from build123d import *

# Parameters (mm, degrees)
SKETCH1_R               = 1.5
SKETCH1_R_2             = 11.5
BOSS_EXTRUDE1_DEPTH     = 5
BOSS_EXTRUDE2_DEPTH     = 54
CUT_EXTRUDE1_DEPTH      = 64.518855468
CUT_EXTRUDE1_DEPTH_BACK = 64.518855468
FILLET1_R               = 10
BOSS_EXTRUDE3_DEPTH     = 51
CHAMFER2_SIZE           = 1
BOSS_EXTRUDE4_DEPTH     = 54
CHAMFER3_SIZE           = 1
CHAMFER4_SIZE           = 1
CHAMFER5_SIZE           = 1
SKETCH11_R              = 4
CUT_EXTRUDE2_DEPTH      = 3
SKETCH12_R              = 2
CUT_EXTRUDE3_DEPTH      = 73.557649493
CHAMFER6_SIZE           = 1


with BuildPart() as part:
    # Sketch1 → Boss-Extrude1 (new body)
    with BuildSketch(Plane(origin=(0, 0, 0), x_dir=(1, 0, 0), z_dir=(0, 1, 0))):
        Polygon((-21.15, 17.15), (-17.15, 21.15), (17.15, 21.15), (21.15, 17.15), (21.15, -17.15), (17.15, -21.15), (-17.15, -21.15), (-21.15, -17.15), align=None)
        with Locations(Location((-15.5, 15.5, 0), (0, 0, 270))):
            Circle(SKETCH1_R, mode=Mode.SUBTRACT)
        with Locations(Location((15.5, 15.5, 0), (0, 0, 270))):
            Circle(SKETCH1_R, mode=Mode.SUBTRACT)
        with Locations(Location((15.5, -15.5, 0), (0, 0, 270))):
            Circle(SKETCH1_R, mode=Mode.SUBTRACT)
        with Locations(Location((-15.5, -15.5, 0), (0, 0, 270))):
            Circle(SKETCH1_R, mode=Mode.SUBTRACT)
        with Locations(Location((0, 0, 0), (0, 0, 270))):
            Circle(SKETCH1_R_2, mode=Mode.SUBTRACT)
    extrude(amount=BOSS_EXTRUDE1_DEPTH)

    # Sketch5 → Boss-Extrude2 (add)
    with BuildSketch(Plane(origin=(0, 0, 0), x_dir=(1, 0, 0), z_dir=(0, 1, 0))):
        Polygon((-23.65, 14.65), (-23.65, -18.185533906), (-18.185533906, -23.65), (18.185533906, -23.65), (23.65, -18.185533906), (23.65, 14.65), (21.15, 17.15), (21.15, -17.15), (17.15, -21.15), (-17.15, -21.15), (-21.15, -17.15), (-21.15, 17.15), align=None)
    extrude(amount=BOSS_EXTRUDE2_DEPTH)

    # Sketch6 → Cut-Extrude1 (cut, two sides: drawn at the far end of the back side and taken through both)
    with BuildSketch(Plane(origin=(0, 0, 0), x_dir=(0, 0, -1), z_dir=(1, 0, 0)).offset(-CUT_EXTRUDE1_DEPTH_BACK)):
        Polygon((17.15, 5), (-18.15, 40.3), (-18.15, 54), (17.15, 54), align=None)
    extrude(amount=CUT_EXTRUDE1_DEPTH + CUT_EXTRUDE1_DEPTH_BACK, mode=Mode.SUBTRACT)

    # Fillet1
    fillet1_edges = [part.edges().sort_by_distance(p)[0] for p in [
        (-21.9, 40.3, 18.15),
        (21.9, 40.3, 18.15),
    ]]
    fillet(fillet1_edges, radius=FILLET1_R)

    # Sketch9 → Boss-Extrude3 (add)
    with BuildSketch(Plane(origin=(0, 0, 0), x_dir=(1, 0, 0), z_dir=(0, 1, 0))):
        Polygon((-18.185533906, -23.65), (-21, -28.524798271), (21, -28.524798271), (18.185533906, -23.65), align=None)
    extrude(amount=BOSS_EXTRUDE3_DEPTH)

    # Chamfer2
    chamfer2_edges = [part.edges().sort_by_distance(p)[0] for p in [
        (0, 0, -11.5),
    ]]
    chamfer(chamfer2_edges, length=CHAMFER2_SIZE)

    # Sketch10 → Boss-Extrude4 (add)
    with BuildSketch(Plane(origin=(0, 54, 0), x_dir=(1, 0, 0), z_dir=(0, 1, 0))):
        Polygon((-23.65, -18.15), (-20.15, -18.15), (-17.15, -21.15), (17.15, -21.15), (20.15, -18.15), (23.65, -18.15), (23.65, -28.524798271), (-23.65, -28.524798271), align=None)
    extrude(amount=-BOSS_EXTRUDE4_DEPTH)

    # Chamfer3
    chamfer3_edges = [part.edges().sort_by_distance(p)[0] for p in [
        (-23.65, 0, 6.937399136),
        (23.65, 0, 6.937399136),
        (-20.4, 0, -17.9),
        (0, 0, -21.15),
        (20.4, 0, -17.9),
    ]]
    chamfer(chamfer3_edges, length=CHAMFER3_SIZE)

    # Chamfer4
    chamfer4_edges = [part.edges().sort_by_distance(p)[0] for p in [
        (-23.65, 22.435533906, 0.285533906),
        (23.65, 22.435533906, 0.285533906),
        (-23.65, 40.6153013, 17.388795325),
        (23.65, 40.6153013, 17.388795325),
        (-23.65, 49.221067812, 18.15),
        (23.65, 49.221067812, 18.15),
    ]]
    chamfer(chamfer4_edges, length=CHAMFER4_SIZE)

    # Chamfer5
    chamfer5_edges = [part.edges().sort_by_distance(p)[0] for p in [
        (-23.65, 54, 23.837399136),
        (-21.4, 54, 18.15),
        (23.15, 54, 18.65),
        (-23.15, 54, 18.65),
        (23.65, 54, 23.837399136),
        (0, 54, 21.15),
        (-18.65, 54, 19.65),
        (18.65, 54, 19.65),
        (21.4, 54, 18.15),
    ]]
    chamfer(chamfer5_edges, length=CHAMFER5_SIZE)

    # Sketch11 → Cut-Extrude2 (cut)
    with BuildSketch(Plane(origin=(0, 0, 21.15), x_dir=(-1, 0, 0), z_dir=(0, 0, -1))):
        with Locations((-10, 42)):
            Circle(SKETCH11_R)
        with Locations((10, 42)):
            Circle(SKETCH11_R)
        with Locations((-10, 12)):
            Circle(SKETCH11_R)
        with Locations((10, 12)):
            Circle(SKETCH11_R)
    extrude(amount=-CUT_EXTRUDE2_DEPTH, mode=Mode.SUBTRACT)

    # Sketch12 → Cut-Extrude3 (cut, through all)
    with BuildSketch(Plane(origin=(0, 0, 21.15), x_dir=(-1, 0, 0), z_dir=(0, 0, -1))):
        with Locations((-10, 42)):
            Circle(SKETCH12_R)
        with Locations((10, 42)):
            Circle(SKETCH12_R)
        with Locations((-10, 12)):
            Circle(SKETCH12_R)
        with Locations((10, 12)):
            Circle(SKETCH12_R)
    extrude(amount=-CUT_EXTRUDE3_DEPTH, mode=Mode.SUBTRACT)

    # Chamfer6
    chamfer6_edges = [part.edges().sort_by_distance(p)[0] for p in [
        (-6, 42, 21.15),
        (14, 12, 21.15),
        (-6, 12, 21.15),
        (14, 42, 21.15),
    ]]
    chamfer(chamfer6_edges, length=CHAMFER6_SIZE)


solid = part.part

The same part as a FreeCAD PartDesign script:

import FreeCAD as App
import Part
import Sketcher

V = App.Vector
Q = App.Units.Quantity


def edges_at(feature, points):
    """Names of the edges that pass closest to the given points."""
    edges = feature.Shape.Edges
    near = lambda p: min(range(len(edges)), key=lambda i: edges[i].distToShape(Part.Vertex(*p))[0])
    return sorted({f"Edge{near(p) + 1}" for p in points})

doc = App.newDocument("Part")
body = doc.addObject("PartDesign::Body", "Body")

# Sketch on XZ plane
sketch1 = body.newObject("Sketcher::SketchObject", "Sketch")
sketch1.AttachmentSupport = (doc.getObject("XZ_Plane"), [""])
sketch1.MapMode = "FlatFace"
sketch1.addGeometry([
    Part.LineSegment(V(-17.1, -21.1, 0), V(-21.1, -17.1, 0)),  # 0
    Part.LineSegment(V(-21.1, -17.1, 0), V(-21.1, 17.1, 0)),  # 1
    Part.LineSegment(V(-21.1, 17.1, 0), V(-17.1, 21.1, 0)),  # 2
    Part.LineSegment(V(-17.1, 21.1, 0), V(17.1, 21.1, 0)),  # 3
    Part.LineSegment(V(17.1, 21.1, 0), V(21.1, 17.1, 0)),  # 4
    Part.LineSegment(V(21.1, 17.1, 0), V(21.1, -17.1, 0)),  # 5
    Part.LineSegment(V(21.1, -17.1, 0), V(17.1, -21.1, 0)),  # 6
    Part.LineSegment(V(17.1, -21.1, 0), V(-17.1, -21.1, 0)),  # 7
    Part.Circle(V(15.5, 15.5, 0), V(0, 0, 1), 1.5),  # 8
    Part.Circle(V(-15.5, 15.5, 0), V(0, 0, 1), 1.5),  # 9
    Part.Circle(V(15.5, -15.5, 0), V(0, 0, 1), 1.5),  # 10
    Part.Circle(V(0, 0, 0), V(0, 0, 1), 11.5),  # 11
    Part.Circle(V(-15.5, -15.5, 0), V(0, 0, 1), 1.5),  # 12
], False)
sketch1.addConstraint([
    Sketcher.Constraint("Coincident", 0, 2, 1, 1),
    Sketcher.Constraint("Coincident", 1, 2, 2, 1),
    Sketcher.Constraint("Coincident", 2, 2, 3, 1),
    Sketcher.Constraint("Coincident", 3, 2, 4, 1),
    Sketcher.Constraint("Coincident", 4, 2, 5, 1),
    Sketcher.Constraint("Coincident", 5, 2, 6, 1),
    Sketcher.Constraint("Coincident", 6, 2, 7, 1),
    Sketcher.Constraint("Coincident", 7, 2, 0, 1),
    Sketcher.Constraint("Vertical", 1),
    Sketcher.Constraint("Horizontal", 3),
    Sketcher.Constraint("Vertical", 5),
    Sketcher.Constraint("Horizontal", 7),
    Sketcher.Constraint("Coincident", 11, 3, -1, 1),
    Sketcher.Constraint("Equal", 8, 9),
    Sketcher.Constraint("Equal", 9, 10),
    Sketcher.Constraint("Equal", 10, 12),
    Sketcher.Constraint("Symmetric", 9, 3, 10, 3, -1, 1),
    Sketcher.Constraint("Symmetric", 8, 3, 12, 3, -1, 1),
    Sketcher.Constraint("Symmetric", 0, 2, 4, 2, -1, 1),
    Sketcher.Constraint("Symmetric", 2, 2, 6, 2, -1, 1),
    Sketcher.Constraint("Symmetric", 8, 3, 9, 3, -2),
    Sketcher.Constraint("Perpendicular", 0, 2),
    Sketcher.Constraint("Perpendicular", 2, 4),
    Sketcher.Constraint("Perpendicular", 4, 6),
    Sketcher.Constraint("Horizontal", 1, 2, 4, 2),
    Sketcher.Constraint("Vertical", 3, 2, 6, 2),
    Sketcher.Constraint("Equal", 7, 1),
    Sketcher.Constraint("Diameter", 8, 3.0),
    Sketcher.Constraint("Diameter", 11, 23.0),
    Sketcher.Constraint("DistanceX", 3, 1, 3, 2, 34.3),
    Sketcher.Constraint("DistanceX", 9, 3, 8, 3, 31.0),
    Sketcher.Constraint("DistanceY", 10, 3, 8, 3, 31.0),
    Sketcher.Constraint("DistanceX", 1, 2, 2, 2, 4.0),
])
pad1 = body.newObject("PartDesign::Pad", "Pad")
pad1.Profile = sketch1
pad1.Length = 5
pad1.Reversed = True

# Sketch on XZ plane
sketch2 = body.newObject("Sketcher::SketchObject", "Sketch001")
sketch2.AttachmentSupport = (doc.getObject("XZ_Plane"), [""])
sketch2.MapMode = "FlatFace"
sketch2.addGeometry([
    Part.LineSegment(V(-23.6, -14.7, 0), V(-23.6, 18.2, 0)),  # 0
    Part.LineSegment(V(-23.6, 18.2, 0), V(-18.2, 23.6, 0)),  # 1
    Part.LineSegment(V(-18.2, 23.6, 0), V(18.2, 23.6, 0)),  # 2
    Part.LineSegment(V(18.2, 23.6, 0), V(23.6, 18.2, 0)),  # 3
    Part.LineSegment(V(23.6, 18.2, 0), V(23.6, -14.7, 0)),  # 4
    Part.LineSegment(V(23.6, -14.7, 0), V(21.1, -17.1, 0)),  # 5
    Part.LineSegment(V(21.1, -17.1, 0), V(21.1, 17.1, 0)),  # 6
    Part.LineSegment(V(21.1, 17.1, 0), V(17.1, 21.1, 0)),  # 7
    Part.LineSegment(V(17.1, 21.1, 0), V(-17.1, 21.1, 0)),  # 8
    Part.LineSegment(V(-17.1, 21.1, 0), V(-21.1, 17.1, 0)),  # 9
    Part.LineSegment(V(-21.1, 17.1, 0), V(-21.1, -17.1, 0)),  # 10
    Part.LineSegment(V(-21.1, -17.1, 0), V(-23.6, -14.7, 0)),  # 11
], False)
sketch2.addConstraint([
    Sketcher.Constraint("Coincident", 0, 2, 1, 1),
    Sketcher.Constraint("Coincident", 1, 2, 2, 1),
    Sketcher.Constraint("Coincident", 2, 2, 3, 1),
    Sketcher.Constraint("Coincident", 3, 2, 4, 1),
    Sketcher.Constraint("Coincident", 4, 2, 5, 1),
    Sketcher.Constraint("Coincident", 5, 2, 6, 1),
    Sketcher.Constraint("Coincident", 6, 2, 7, 1),
    Sketcher.Constraint("Coincident", 7, 2, 8, 1),
    Sketcher.Constraint("Coincident", 8, 2, 9, 1),
    Sketcher.Constraint("Coincident", 9, 2, 10, 1),
    Sketcher.Constraint("Coincident", 10, 2, 11, 1),
    Sketcher.Constraint("Coincident", 11, 2, 0, 1),
    Sketcher.Constraint("Vertical", 0),
    Sketcher.Constraint("Horizontal", 2),
    Sketcher.Constraint("Vertical", 4),
    Sketcher.Constraint("Vertical", 6),
    Sketcher.Constraint("Horizontal", 8),
    Sketcher.Constraint("Vertical", 10),
    Sketcher.Constraint("Symmetric", 5, 2, 9, 2, -1, 1),
    Sketcher.Constraint("Symmetric", 0, 2, 3, 2, -2),
    Sketcher.Constraint("Perpendicular", 1, 3),
    Sketcher.Constraint("Perpendicular", 3, 5),
    Sketcher.Constraint("Perpendicular", 5, 7),
    Sketcher.Constraint("Perpendicular", 7, 9),
    Sketcher.Constraint("Perpendicular", 9, 11),
    Sketcher.Constraint("Horizontal", 6, 2, 9, 2),
    Sketcher.Constraint("Horizontal", 5, 2, 10, 2),
    Sketcher.Constraint("Horizontal", 4, 2, 11, 2),
    Sketcher.Constraint("Equal", 8, 6),
    Sketcher.Constraint("DistanceX", 8, 2, 8, 1, 34.3),
    Sketcher.Constraint("DistanceX", 7, 2, 6, 2, 4.0),
    Sketcher.Constraint("DistanceX", 0, 2, 3, 2, 47.3),
    Sketcher.Constraint("DistanceY", 4, 2, 2, 2, 38.3),
    Sketcher.Constraint("DistanceX", 2, 1, 2, 2, 36.371068),
])
pad2 = body.newObject("PartDesign::Pad", "Pad001")
pad2.Profile = sketch2
pad2.Length = 54
pad2.Reversed = True

# Sketch on YZ plane
sketch3 = body.newObject("Sketcher::SketchObject", "Sketch002")
sketch3.AttachmentSupport = (doc.getObject("YZ_Plane"), [""])
sketch3.MapMode = "FlatFace"
sketch3.addGeometry([
    Part.LineSegment(V(40, 18, 0), V(5, -17, 0)),
    Part.LineSegment(V(5, -17, 0), V(54, -17, 0)),
    Part.LineSegment(V(54, -17, 0), V(54, 18, 0)),
    Part.LineSegment(V(54, 18, 0), V(40, 18, 0)),
], False)
sketch3.addConstraint([
    Sketcher.Constraint("Coincident", 0, 2, 1, 1),
    Sketcher.Constraint("Coincident", 1, 2, 2, 1),
    Sketcher.Constraint("Coincident", 2, 2, 3, 1),
    Sketcher.Constraint("Coincident", 3, 2, 0, 1),
    Sketcher.Constraint("Horizontal", 1),
    Sketcher.Constraint("Vertical", 2),
    Sketcher.Constraint("Horizontal", 3),
    Sketcher.Constraint("DistanceX", 1, 1, 1, 2, 49.0),
    Sketcher.Constraint("Angle", 0, Q("-135 deg")),
    Sketcher.Constraint("DistanceX", 3, 2, 3, 1, 13.7),
    Sketcher.Constraint("DistanceX", -1, 1, 0, 2, 5.0),
    Sketcher.Constraint("DistanceY", 0, 2, -1, 1, 17.15),
])
pocket1 = body.newObject("PartDesign::Pocket", "Pocket")
pocket1.Profile = sketch3
pocket1.Type = "ThroughAll"
pocket1.Midplane = True
doc.recompute()

fillet = body.newObject("PartDesign::Fillet", "Fillet")
fillet.Base = (pocket1, edges_at(pocket1, [(-21.9, 40.3, 18.15), (21.9, 40.3, 18.15)]))
fillet.Radius = 10

# Sketch on XZ plane
sketch4 = body.newObject("Sketcher::SketchObject", "Sketch003")
sketch4.AttachmentSupport = (doc.getObject("XZ_Plane"), [""])
sketch4.MapMode = "FlatFace"
sketch4.addGeometry([
    Part.LineSegment(V(-18, 24, 0), V(-21, 29, 0)),
    Part.LineSegment(V(-21, 29, 0), V(21, 29, 0)),
    Part.LineSegment(V(21, 29, 0), V(18, 24, 0)),
    Part.LineSegment(V(18, 24, 0), V(-18, 24, 0)),
], False)
sketch4.addConstraint([
    Sketcher.Constraint("Coincident", 0, 2, 1, 1),
    Sketcher.Constraint("Coincident", 1, 2, 2, 1),
    Sketcher.Constraint("Coincident", 2, 2, 3, 1),
    Sketcher.Constraint("Coincident", 3, 2, 0, 1),
    Sketcher.Constraint("Horizontal", 1),
    Sketcher.Constraint("Horizontal", 3),
    Sketcher.Constraint("Equal", 0, 2),
    Sketcher.Constraint("DistanceX", 1, 1, 1, 2, 42.0),
    Sketcher.Constraint("Angle", 0, Q("120 deg")),
    Sketcher.Constraint("DistanceX", 0, 2, -1, 1, 21.0),
    Sketcher.Constraint("DistanceY", -1, 1, 2, 2, 23.65),
    Sketcher.Constraint("DistanceY", -1, 1, 0, 2, 28.524798),
])
pad3 = body.newObject("PartDesign::Pad", "Pad002")
pad3.Profile = sketch4
pad3.Length = 51
pad3.Reversed = True
doc.recompute()

chamfer = body.newObject("PartDesign::Chamfer", "Chamfer")
chamfer.Base = (pad3, edges_at(pad3, [(0, 0, -11.5)]))
chamfer.Size = 1

# Sketch on XZ plane
sketch5 = body.newObject("Sketcher::SketchObject", "Sketch004")
sketch5.AttachmentSupport = (doc.getObject("XZ_Plane"), [""])
sketch5.MapMode = "FlatFace"
sketch5.AttachmentOffset = App.Placement(V(0, 0, -54), App.Rotation())
sketch5.addGeometry([
    Part.LineSegment(V(-20.1, 18.1, 0), V(-23.6, 18.1, 0)),  # 0
    Part.LineSegment(V(-23.6, 18.1, 0), V(-23.6, 28.5, 0)),  # 1
    Part.LineSegment(V(-23.6, 28.5, 0), V(23.6, 28.5, 0)),  # 2
    Part.LineSegment(V(23.6, 28.5, 0), V(23.6, 18.1, 0)),  # 3
    Part.LineSegment(V(23.6, 18.1, 0), V(20.1, 18.1, 0)),  # 4
    Part.LineSegment(V(20.1, 18.1, 0), V(17.1, 21.1, 0)),  # 5
    Part.LineSegment(V(17.1, 21.1, 0), V(-17.1, 21.1, 0)),  # 6
    Part.LineSegment(V(-17.1, 21.1, 0), V(-20.1, 18.1, 0)),  # 7
], False)
sketch5.addConstraint([
    Sketcher.Constraint("Coincident", 0, 2, 1, 1),
    Sketcher.Constraint("Coincident", 1, 2, 2, 1),
    Sketcher.Constraint("Coincident", 2, 2, 3, 1),
    Sketcher.Constraint("Coincident", 3, 2, 4, 1),
    Sketcher.Constraint("Coincident", 4, 2, 5, 1),
    Sketcher.Constraint("Coincident", 5, 2, 6, 1),
    Sketcher.Constraint("Coincident", 6, 2, 7, 1),
    Sketcher.Constraint("Coincident", 7, 2, 0, 1),
    Sketcher.Constraint("Horizontal", 0),
    Sketcher.Constraint("Vertical", 1),
    Sketcher.Constraint("Horizontal", 2),
    Sketcher.Constraint("Vertical", 3),
    Sketcher.Constraint("Horizontal", 4),
    Sketcher.Constraint("Horizontal", 6),
    Sketcher.Constraint("Symmetric", 0, 2, 3, 2, -2),
    Sketcher.Constraint("Perpendicular", 5, 7),
    Sketcher.Constraint("Equal", 0, 4),
    Sketcher.Constraint("Equal", 5, 7),
    Sketcher.Constraint("DistanceX", 0, 2, 0, 1, 3.5),
    Sketcher.Constraint("DistanceX", 2, 1, 2, 2, 47.3),
    Sketcher.Constraint("DistanceX", 6, 2, 6, 1, 34.3),
    Sketcher.Constraint("DistanceY", -1, 1, 0, 2, 18.15),
    Sketcher.Constraint("DistanceY", 1, 1, 1, 2, 10.374798),
])
pad4 = body.newObject("PartDesign::Pad", "Pad003")
pad4.Profile = sketch5
pad4.Length = 54
doc.recompute()

chamfer2 = body.newObject("PartDesign::Chamfer", "Chamfer001")
chamfer2.Base = (pad4, edges_at(pad4, [
    (-23.65, 0, 6.937),
    (23.65, 0, 6.937),
    (-20.4, 0, -17.9),
    (0, 0, -21.15),
    (20.4, 0, -17.9),
]))
chamfer2.Size = 1
doc.recompute()

chamfer3 = body.newObject("PartDesign::Chamfer", "Chamfer002")
chamfer3.Base = (chamfer2, edges_at(chamfer2, [
    (-23.65, 22.436, 0.286),
    (23.65, 22.436, 0.286),
    (-23.65, 40.615, 17.389),
    (23.65, 40.615, 17.389),
    (-23.65, 49.221, 18.15),
    (23.65, 49.221, 18.15),
]))
chamfer3.Size = 1
doc.recompute()

chamfer4 = body.newObject("PartDesign::Chamfer", "Chamfer003")
chamfer4.Base = (chamfer3, edges_at(chamfer3, [
    (-23.65, 54, 23.837),
    (-21.4, 54, 18.15),
    (23.15, 54, 18.65),
    (-23.15, 54, 18.65),
    (23.65, 54, 23.837),
    (0, 54, 21.15),
    (-18.65, 54, 19.65),
    (18.65, 54, 19.65),
    (21.4, 54, 18.15),
]))
chamfer4.Size = 1

# Sketch on XY plane
sketch6 = body.newObject("Sketcher::SketchObject", "Sketch005")
sketch6.AttachmentSupport = (doc.getObject("XY_Plane"), [""])
sketch6.MapMode = "FlatFace"
sketch6.AttachmentOffset = App.Placement(V(0, 0, 21.15), App.Rotation())
sketch6.addGeometry([
    Part.Circle(V(10, 42, 0), V(0, 0, 1), 4),
    Part.Circle(V(-10, 42, 0), V(0, 0, 1), 4),
    Part.Circle(V(10, 12, 0), V(0, 0, 1), 4),
    Part.Circle(V(-10, 12, 0), V(0, 0, 1), 4),
], False)
sketch6.addConstraint([
    Sketcher.Constraint("Equal", 0, 1),
    Sketcher.Constraint("Equal", 1, 2),
    Sketcher.Constraint("Equal", 2, 3),
    Sketcher.Constraint("Symmetric", 0, 3, 1, 3, -2),
    Sketcher.Constraint("Symmetric", 2, 3, 3, 3, -2),
    Sketcher.Constraint("Vertical", 0, 3, 2, 3),
    Sketcher.Constraint("Diameter", 0, 8.0),
    Sketcher.Constraint("DistanceX", -1, 1, 0, 3, 10.0),
    Sketcher.Constraint("DistanceY", -1, 1, 0, 3, 42.0),
    Sketcher.Constraint("DistanceY", -1, 1, 2, 3, 12.0),
])
pocket2 = body.newObject("PartDesign::Pocket", "Pocket001")
pocket2.Profile = sketch6
pocket2.Length = 3
pocket2.Reversed = True

# Sketch on XY plane
sketch7 = body.newObject("Sketcher::SketchObject", "Sketch006")
sketch7.AttachmentSupport = (doc.getObject("XY_Plane"), [""])
sketch7.MapMode = "FlatFace"
sketch7.AttachmentOffset = App.Placement(V(0, 0, 21.15), App.Rotation())
sketch7.addGeometry([
    Part.Circle(V(10, 42, 0), V(0, 0, 1), 2),
    Part.Circle(V(-10, 42, 0), V(0, 0, 1), 2),
    Part.Circle(V(10, 12, 0), V(0, 0, 1), 2),
    Part.Circle(V(-10, 12, 0), V(0, 0, 1), 2),
], False)
sketch7.addConstraint([
    Sketcher.Constraint("Equal", 0, 1),
    Sketcher.Constraint("Equal", 1, 2),
    Sketcher.Constraint("Equal", 2, 3),
    Sketcher.Constraint("Symmetric", 0, 3, 1, 3, -2),
    Sketcher.Constraint("Symmetric", 2, 3, 3, 3, -2),
    Sketcher.Constraint("Vertical", 0, 3, 2, 3),
    Sketcher.Constraint("Diameter", 0, 4.0),
    Sketcher.Constraint("DistanceX", -1, 1, 0, 3, 10.0),
    Sketcher.Constraint("DistanceY", -1, 1, 0, 3, 42.0),
    Sketcher.Constraint("DistanceY", -1, 1, 2, 3, 12.0),
])
pocket3 = body.newObject("PartDesign::Pocket", "Pocket002")
pocket3.Profile = sketch7
pocket3.Type = "ThroughAll"
pocket3.Reversed = True
doc.recompute()

chamfer5 = body.newObject("PartDesign::Chamfer", "Chamfer004")
chamfer5.Base = (pocket3, edges_at(pocket3, [
    (-6, 42, 21.15),
    (14, 12, 21.15),
    (-6, 12, 21.15),
    (14, 42, 21.15),
]))
chamfer5.Size = 1

doc.recompute()
